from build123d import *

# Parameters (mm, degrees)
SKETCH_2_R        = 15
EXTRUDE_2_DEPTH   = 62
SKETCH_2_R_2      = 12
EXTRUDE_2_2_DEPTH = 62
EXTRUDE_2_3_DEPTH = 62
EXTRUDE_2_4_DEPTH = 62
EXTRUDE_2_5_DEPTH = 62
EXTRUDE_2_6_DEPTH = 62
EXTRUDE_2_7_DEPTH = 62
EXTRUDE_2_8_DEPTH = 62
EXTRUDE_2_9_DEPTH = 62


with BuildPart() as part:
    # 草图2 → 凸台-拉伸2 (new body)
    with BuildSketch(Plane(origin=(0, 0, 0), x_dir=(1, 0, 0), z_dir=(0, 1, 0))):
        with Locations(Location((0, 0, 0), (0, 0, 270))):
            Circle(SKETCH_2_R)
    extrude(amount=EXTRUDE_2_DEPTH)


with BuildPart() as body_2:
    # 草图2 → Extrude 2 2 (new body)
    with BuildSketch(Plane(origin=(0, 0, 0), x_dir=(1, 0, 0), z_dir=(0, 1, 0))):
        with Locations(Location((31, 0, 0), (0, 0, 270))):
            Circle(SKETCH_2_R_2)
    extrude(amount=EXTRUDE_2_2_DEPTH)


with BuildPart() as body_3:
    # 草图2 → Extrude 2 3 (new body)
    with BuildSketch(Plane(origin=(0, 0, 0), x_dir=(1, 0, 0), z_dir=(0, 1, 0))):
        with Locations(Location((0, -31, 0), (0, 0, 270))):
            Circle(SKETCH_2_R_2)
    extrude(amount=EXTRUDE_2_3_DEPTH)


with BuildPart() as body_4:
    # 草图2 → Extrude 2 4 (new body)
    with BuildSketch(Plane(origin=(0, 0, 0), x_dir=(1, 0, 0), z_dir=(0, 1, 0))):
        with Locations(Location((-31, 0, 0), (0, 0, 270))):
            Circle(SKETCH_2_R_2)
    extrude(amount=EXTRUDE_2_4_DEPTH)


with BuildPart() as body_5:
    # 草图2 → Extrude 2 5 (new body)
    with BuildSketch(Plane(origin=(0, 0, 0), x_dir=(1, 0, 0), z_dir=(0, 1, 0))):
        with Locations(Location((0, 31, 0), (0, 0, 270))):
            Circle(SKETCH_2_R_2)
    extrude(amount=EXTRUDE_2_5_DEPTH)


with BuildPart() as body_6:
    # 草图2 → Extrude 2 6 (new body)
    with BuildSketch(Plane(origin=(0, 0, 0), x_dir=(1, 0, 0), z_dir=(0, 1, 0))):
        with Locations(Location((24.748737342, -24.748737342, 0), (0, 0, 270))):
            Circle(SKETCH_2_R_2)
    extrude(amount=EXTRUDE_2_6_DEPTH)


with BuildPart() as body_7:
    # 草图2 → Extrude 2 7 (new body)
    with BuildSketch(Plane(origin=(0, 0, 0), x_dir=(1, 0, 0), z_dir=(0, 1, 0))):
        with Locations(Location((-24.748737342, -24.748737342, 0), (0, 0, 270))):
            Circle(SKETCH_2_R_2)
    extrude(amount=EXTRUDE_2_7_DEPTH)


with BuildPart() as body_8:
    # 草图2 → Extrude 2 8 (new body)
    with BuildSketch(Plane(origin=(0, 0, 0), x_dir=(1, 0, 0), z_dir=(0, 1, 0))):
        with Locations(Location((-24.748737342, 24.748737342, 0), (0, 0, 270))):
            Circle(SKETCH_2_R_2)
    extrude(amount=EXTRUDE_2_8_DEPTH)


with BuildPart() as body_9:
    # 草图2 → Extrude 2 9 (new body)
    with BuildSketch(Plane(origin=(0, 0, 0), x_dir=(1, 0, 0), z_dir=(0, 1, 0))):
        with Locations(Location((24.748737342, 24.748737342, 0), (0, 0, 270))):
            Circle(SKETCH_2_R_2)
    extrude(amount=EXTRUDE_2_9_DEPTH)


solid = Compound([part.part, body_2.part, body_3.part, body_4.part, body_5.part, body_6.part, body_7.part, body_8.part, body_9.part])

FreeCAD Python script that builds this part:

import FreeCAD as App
import Part
import Sketcher

V = App.Vector

doc = App.newDocument("Part")
body = doc.addObject("PartDesign::Body", "Body")

# Sketch on XZ plane
sketch1 = body.newObject("Sketcher::SketchObject", "Sketch")
sketch1.AttachmentSupport = (doc.getObject("XZ_Plane"), [""])
sketch1.MapMode = "FlatFace"
sketch1.addGeometry(Part.Circle(V(0, 0, 0), V(0, 0, 1), 15), False)
sketch1.addConstraint(Sketcher.Constraint("Coincident", 0, 3, -1, 1))
sketch1.addConstraint(Sketcher.Constraint("Diameter", 0, 30.0))
pad1 = body.newObject("PartDesign::Pad", "Pad")
pad1.Profile = sketch1
pad1.Length = 62
pad1.Reversed = True
body2 = doc.addObject("PartDesign::Body", "Body001")

# Sketch on XZ plane
sketch2 = body2.newObject("Sketcher::SketchObject", "Sketch001")
sketch2.AttachmentSupport = (doc.getObject("XZ_Plane001"), [""])
sketch2.MapMode = "FlatFace"
sketch2.addGeometry(Part.Circle(V(31, 0, 0), V(0, 0, 1), 12), False)
sketch2.addConstraint(Sketcher.Constraint("PointOnObject", 0, 3, -1))
sketch2.addConstraint(Sketcher.Constraint("Diameter", 0, 24.0))
sketch2.addConstraint(Sketcher.Constraint("DistanceX", -1, 1, 0, 3, 31.0))
pad2 = body2.newObject("PartDesign::Pad", "Pad001")
pad2.Profile = sketch2
pad2.Length = 62
pad2.Reversed = True
body3 = doc.addObject("PartDesign::Body", "Body002")

# Sketch on XZ plane
sketch3 = body3.newObject("Sketcher::SketchObject", "Sketch002")
sketch3.AttachmentSupport = (doc.getObject("XZ_Plane002"), [""])
sketch3.MapMode = "FlatFace"
sketch3.addGeometry(Part.Circle(V(0, 31, 0), V(0, 0, 1), 12), False)
sketch3.addConstraint(Sketcher.Constraint("PointOnObject", 0, 3, -2))
sketch3.addConstraint(Sketcher.Constraint("Diameter", 0, 24.0))
sketch3.addConstraint(Sketcher.Constraint("DistanceY", -1, 1, 0, 3, 31.0))
pad3 = body3.newObject("PartDesign::Pad", "Pad002")
pad3.Profile = sketch3
pad3.Length = 62
pad3.Reversed = True
body4 = doc.addObject("PartDesign::Body", "Body003")

# Sketch on XZ plane
sketch4 = body4.newObject("Sketcher::SketchObject", "Sketch003")
sketch4.AttachmentSupport = (doc.getObject("XZ_Plane003"), [""])
sketch4.MapMode = "FlatFace"
sketch4.addGeometry(Part.Circle(V(-31, 0, 0), V(0, 0, 1), 12), False)
sketch4.addConstraint(Sketcher.Constraint("PointOnObject", 0, 3, -1))
sketch4.addConstraint(Sketcher.Constraint("Diameter", 0, 24.0))
sketch4.addConstraint(Sketcher.Constraint("DistanceX", 0, 3, -1, 1, 31.0))
pad4 = body4.newObject("PartDesign::Pad", "Pad003")
pad4.Profile = sketch4
pad4.Length = 62
pad4.Reversed = True
body5 = doc.addObject("PartDesign::Body", "Body004")

# Sketch on XZ plane
sketch5 = body5.newObject("Sketcher::SketchObject", "Sketch004")
sketch5.AttachmentSupport = (doc.getObject("XZ_Plane004"), [""])
sketch5.MapMode = "FlatFace"
sketch5.addGeometry(Part.Circle(V(0, -31, 0), V(0, 0, 1), 12), False)
sketch5.addConstraint(Sketcher.Constraint("PointOnObject", 0, 3, -2))
sketch5.addConstraint(Sketcher.Constraint("Diameter", 0, 24.0))
sketch5.addConstraint(Sketcher.Constraint("DistanceY", 0, 3, -1, 1, 31.0))
pad5 = body5.newObject("PartDesign::Pad", "Pad004")
pad5.Profile = sketch5
pad5.Length = 62
pad5.Reversed = True
body6 = doc.addObject("PartDesign::Body", "Body005")

# Sketch on XZ plane
sketch6 = body6.newObject("Sketcher::SketchObject", "Sketch005")
sketch6.AttachmentSupport = (doc.getObject("XZ_Plane005"), [""])
sketch6.MapMode = "FlatFace"
sketch6.addGeometry(Part.Circle(V(25, 25, 0), V(0, 0, 1), 12), False)
sketch6.addConstraint(Sketcher.Constraint("Diameter", 0, 24.0))
sketch6.addConstraint(Sketcher.Constraint("DistanceX", -1, 1, 0, 3, 24.748737))
sketch6.addConstraint(Sketcher.Constraint("DistanceY", -1, 1, 0, 3, 24.748737))
pad6 = body6.newObject("PartDesign::Pad", "Pad005")
pad6.Profile = sketch6
pad6.Length = 62
pad6.Reversed = True
body7 = doc.addObject("PartDesign::Body", "Body006")

# Sketch on XZ plane
sketch7 = body7.newObject("Sketcher::SketchObject", "Sketch006")
sketch7.AttachmentSupport = (doc.getObject("XZ_Plane006"), [""])
sketch7.MapMode = "FlatFace"
sketch7.addGeometry(Part.Circle(V(-25, 25, 0), V(0, 0, 1), 12), False)
sketch7.addConstraint(Sketcher.Constraint("Diameter", 0, 24.0))
sketch7.addConstraint(Sketcher.Constraint("DistanceX", 0, 3, -1, 1, 24.748737))
sketch7.addConstraint(Sketcher.Constraint("DistanceY", -1, 1, 0, 3, 24.748737))
pad7 = body7.newObject("PartDesign::Pad", "Pad006")
pad7.Profile = sketch7
pad7.Length = 62
pad7.Reversed = True
body8 = doc.addObject("PartDesign::Body", "Body007")

# Sketch on XZ plane
sketch8 = body8.newObject("Sketcher::SketchObject", "Sketch007")
sketch8.AttachmentSupport = (doc.getObject("XZ_Plane007"), [""])
sketch8.MapMode = "FlatFace"
sketch8.addGeometry(Part.Circle(V(-25, -25, 0), V(0, 0, 1), 12), False)
sketch8.addConstraint(Sketcher.Constraint("Diameter", 0, 24.0))
sketch8.addConstraint(Sketcher.Constraint("DistanceX", 0, 3, -1, 1, 24.748737))
sketch8.addConstraint(Sketcher.Constraint("DistanceY", 0, 3, -1, 1, 24.748737))
pad8 = body8.newObject("PartDesign::Pad", "Pad007")
pad8.Profile = sketch8
pad8.Length = 62
pad8.Reversed = True
body9 = doc.addObject("PartDesign::Body", "Body008")

# Sketch on XZ plane
sketch9 = body9.newObject("Sketcher::SketchObject", "Sketch008")
sketch9.AttachmentSupport = (doc.getObject("XZ_Plane008"), [""])
sketch9.MapMode = "FlatFace"
sketch9.addGeometry(Part.Circle(V(25, -25, 0), V(0, 0, 1), 12), False)
sketch9.addConstraint(Sketcher.Constraint("Diameter", 0, 24.0))
sketch9.addConstraint(Sketcher.Constraint("DistanceX", -1, 1, 0, 3, 24.748737))
sketch9.addConstraint(Sketcher.Constraint("DistanceY", 0, 3, -1, 1, 24.748737))
pad9 = body9.newObject("PartDesign::Pad", "Pad008")
pad9.Profile = sketch9
pad9.Length = 62
pad9.Reversed = True

doc.recompute()
